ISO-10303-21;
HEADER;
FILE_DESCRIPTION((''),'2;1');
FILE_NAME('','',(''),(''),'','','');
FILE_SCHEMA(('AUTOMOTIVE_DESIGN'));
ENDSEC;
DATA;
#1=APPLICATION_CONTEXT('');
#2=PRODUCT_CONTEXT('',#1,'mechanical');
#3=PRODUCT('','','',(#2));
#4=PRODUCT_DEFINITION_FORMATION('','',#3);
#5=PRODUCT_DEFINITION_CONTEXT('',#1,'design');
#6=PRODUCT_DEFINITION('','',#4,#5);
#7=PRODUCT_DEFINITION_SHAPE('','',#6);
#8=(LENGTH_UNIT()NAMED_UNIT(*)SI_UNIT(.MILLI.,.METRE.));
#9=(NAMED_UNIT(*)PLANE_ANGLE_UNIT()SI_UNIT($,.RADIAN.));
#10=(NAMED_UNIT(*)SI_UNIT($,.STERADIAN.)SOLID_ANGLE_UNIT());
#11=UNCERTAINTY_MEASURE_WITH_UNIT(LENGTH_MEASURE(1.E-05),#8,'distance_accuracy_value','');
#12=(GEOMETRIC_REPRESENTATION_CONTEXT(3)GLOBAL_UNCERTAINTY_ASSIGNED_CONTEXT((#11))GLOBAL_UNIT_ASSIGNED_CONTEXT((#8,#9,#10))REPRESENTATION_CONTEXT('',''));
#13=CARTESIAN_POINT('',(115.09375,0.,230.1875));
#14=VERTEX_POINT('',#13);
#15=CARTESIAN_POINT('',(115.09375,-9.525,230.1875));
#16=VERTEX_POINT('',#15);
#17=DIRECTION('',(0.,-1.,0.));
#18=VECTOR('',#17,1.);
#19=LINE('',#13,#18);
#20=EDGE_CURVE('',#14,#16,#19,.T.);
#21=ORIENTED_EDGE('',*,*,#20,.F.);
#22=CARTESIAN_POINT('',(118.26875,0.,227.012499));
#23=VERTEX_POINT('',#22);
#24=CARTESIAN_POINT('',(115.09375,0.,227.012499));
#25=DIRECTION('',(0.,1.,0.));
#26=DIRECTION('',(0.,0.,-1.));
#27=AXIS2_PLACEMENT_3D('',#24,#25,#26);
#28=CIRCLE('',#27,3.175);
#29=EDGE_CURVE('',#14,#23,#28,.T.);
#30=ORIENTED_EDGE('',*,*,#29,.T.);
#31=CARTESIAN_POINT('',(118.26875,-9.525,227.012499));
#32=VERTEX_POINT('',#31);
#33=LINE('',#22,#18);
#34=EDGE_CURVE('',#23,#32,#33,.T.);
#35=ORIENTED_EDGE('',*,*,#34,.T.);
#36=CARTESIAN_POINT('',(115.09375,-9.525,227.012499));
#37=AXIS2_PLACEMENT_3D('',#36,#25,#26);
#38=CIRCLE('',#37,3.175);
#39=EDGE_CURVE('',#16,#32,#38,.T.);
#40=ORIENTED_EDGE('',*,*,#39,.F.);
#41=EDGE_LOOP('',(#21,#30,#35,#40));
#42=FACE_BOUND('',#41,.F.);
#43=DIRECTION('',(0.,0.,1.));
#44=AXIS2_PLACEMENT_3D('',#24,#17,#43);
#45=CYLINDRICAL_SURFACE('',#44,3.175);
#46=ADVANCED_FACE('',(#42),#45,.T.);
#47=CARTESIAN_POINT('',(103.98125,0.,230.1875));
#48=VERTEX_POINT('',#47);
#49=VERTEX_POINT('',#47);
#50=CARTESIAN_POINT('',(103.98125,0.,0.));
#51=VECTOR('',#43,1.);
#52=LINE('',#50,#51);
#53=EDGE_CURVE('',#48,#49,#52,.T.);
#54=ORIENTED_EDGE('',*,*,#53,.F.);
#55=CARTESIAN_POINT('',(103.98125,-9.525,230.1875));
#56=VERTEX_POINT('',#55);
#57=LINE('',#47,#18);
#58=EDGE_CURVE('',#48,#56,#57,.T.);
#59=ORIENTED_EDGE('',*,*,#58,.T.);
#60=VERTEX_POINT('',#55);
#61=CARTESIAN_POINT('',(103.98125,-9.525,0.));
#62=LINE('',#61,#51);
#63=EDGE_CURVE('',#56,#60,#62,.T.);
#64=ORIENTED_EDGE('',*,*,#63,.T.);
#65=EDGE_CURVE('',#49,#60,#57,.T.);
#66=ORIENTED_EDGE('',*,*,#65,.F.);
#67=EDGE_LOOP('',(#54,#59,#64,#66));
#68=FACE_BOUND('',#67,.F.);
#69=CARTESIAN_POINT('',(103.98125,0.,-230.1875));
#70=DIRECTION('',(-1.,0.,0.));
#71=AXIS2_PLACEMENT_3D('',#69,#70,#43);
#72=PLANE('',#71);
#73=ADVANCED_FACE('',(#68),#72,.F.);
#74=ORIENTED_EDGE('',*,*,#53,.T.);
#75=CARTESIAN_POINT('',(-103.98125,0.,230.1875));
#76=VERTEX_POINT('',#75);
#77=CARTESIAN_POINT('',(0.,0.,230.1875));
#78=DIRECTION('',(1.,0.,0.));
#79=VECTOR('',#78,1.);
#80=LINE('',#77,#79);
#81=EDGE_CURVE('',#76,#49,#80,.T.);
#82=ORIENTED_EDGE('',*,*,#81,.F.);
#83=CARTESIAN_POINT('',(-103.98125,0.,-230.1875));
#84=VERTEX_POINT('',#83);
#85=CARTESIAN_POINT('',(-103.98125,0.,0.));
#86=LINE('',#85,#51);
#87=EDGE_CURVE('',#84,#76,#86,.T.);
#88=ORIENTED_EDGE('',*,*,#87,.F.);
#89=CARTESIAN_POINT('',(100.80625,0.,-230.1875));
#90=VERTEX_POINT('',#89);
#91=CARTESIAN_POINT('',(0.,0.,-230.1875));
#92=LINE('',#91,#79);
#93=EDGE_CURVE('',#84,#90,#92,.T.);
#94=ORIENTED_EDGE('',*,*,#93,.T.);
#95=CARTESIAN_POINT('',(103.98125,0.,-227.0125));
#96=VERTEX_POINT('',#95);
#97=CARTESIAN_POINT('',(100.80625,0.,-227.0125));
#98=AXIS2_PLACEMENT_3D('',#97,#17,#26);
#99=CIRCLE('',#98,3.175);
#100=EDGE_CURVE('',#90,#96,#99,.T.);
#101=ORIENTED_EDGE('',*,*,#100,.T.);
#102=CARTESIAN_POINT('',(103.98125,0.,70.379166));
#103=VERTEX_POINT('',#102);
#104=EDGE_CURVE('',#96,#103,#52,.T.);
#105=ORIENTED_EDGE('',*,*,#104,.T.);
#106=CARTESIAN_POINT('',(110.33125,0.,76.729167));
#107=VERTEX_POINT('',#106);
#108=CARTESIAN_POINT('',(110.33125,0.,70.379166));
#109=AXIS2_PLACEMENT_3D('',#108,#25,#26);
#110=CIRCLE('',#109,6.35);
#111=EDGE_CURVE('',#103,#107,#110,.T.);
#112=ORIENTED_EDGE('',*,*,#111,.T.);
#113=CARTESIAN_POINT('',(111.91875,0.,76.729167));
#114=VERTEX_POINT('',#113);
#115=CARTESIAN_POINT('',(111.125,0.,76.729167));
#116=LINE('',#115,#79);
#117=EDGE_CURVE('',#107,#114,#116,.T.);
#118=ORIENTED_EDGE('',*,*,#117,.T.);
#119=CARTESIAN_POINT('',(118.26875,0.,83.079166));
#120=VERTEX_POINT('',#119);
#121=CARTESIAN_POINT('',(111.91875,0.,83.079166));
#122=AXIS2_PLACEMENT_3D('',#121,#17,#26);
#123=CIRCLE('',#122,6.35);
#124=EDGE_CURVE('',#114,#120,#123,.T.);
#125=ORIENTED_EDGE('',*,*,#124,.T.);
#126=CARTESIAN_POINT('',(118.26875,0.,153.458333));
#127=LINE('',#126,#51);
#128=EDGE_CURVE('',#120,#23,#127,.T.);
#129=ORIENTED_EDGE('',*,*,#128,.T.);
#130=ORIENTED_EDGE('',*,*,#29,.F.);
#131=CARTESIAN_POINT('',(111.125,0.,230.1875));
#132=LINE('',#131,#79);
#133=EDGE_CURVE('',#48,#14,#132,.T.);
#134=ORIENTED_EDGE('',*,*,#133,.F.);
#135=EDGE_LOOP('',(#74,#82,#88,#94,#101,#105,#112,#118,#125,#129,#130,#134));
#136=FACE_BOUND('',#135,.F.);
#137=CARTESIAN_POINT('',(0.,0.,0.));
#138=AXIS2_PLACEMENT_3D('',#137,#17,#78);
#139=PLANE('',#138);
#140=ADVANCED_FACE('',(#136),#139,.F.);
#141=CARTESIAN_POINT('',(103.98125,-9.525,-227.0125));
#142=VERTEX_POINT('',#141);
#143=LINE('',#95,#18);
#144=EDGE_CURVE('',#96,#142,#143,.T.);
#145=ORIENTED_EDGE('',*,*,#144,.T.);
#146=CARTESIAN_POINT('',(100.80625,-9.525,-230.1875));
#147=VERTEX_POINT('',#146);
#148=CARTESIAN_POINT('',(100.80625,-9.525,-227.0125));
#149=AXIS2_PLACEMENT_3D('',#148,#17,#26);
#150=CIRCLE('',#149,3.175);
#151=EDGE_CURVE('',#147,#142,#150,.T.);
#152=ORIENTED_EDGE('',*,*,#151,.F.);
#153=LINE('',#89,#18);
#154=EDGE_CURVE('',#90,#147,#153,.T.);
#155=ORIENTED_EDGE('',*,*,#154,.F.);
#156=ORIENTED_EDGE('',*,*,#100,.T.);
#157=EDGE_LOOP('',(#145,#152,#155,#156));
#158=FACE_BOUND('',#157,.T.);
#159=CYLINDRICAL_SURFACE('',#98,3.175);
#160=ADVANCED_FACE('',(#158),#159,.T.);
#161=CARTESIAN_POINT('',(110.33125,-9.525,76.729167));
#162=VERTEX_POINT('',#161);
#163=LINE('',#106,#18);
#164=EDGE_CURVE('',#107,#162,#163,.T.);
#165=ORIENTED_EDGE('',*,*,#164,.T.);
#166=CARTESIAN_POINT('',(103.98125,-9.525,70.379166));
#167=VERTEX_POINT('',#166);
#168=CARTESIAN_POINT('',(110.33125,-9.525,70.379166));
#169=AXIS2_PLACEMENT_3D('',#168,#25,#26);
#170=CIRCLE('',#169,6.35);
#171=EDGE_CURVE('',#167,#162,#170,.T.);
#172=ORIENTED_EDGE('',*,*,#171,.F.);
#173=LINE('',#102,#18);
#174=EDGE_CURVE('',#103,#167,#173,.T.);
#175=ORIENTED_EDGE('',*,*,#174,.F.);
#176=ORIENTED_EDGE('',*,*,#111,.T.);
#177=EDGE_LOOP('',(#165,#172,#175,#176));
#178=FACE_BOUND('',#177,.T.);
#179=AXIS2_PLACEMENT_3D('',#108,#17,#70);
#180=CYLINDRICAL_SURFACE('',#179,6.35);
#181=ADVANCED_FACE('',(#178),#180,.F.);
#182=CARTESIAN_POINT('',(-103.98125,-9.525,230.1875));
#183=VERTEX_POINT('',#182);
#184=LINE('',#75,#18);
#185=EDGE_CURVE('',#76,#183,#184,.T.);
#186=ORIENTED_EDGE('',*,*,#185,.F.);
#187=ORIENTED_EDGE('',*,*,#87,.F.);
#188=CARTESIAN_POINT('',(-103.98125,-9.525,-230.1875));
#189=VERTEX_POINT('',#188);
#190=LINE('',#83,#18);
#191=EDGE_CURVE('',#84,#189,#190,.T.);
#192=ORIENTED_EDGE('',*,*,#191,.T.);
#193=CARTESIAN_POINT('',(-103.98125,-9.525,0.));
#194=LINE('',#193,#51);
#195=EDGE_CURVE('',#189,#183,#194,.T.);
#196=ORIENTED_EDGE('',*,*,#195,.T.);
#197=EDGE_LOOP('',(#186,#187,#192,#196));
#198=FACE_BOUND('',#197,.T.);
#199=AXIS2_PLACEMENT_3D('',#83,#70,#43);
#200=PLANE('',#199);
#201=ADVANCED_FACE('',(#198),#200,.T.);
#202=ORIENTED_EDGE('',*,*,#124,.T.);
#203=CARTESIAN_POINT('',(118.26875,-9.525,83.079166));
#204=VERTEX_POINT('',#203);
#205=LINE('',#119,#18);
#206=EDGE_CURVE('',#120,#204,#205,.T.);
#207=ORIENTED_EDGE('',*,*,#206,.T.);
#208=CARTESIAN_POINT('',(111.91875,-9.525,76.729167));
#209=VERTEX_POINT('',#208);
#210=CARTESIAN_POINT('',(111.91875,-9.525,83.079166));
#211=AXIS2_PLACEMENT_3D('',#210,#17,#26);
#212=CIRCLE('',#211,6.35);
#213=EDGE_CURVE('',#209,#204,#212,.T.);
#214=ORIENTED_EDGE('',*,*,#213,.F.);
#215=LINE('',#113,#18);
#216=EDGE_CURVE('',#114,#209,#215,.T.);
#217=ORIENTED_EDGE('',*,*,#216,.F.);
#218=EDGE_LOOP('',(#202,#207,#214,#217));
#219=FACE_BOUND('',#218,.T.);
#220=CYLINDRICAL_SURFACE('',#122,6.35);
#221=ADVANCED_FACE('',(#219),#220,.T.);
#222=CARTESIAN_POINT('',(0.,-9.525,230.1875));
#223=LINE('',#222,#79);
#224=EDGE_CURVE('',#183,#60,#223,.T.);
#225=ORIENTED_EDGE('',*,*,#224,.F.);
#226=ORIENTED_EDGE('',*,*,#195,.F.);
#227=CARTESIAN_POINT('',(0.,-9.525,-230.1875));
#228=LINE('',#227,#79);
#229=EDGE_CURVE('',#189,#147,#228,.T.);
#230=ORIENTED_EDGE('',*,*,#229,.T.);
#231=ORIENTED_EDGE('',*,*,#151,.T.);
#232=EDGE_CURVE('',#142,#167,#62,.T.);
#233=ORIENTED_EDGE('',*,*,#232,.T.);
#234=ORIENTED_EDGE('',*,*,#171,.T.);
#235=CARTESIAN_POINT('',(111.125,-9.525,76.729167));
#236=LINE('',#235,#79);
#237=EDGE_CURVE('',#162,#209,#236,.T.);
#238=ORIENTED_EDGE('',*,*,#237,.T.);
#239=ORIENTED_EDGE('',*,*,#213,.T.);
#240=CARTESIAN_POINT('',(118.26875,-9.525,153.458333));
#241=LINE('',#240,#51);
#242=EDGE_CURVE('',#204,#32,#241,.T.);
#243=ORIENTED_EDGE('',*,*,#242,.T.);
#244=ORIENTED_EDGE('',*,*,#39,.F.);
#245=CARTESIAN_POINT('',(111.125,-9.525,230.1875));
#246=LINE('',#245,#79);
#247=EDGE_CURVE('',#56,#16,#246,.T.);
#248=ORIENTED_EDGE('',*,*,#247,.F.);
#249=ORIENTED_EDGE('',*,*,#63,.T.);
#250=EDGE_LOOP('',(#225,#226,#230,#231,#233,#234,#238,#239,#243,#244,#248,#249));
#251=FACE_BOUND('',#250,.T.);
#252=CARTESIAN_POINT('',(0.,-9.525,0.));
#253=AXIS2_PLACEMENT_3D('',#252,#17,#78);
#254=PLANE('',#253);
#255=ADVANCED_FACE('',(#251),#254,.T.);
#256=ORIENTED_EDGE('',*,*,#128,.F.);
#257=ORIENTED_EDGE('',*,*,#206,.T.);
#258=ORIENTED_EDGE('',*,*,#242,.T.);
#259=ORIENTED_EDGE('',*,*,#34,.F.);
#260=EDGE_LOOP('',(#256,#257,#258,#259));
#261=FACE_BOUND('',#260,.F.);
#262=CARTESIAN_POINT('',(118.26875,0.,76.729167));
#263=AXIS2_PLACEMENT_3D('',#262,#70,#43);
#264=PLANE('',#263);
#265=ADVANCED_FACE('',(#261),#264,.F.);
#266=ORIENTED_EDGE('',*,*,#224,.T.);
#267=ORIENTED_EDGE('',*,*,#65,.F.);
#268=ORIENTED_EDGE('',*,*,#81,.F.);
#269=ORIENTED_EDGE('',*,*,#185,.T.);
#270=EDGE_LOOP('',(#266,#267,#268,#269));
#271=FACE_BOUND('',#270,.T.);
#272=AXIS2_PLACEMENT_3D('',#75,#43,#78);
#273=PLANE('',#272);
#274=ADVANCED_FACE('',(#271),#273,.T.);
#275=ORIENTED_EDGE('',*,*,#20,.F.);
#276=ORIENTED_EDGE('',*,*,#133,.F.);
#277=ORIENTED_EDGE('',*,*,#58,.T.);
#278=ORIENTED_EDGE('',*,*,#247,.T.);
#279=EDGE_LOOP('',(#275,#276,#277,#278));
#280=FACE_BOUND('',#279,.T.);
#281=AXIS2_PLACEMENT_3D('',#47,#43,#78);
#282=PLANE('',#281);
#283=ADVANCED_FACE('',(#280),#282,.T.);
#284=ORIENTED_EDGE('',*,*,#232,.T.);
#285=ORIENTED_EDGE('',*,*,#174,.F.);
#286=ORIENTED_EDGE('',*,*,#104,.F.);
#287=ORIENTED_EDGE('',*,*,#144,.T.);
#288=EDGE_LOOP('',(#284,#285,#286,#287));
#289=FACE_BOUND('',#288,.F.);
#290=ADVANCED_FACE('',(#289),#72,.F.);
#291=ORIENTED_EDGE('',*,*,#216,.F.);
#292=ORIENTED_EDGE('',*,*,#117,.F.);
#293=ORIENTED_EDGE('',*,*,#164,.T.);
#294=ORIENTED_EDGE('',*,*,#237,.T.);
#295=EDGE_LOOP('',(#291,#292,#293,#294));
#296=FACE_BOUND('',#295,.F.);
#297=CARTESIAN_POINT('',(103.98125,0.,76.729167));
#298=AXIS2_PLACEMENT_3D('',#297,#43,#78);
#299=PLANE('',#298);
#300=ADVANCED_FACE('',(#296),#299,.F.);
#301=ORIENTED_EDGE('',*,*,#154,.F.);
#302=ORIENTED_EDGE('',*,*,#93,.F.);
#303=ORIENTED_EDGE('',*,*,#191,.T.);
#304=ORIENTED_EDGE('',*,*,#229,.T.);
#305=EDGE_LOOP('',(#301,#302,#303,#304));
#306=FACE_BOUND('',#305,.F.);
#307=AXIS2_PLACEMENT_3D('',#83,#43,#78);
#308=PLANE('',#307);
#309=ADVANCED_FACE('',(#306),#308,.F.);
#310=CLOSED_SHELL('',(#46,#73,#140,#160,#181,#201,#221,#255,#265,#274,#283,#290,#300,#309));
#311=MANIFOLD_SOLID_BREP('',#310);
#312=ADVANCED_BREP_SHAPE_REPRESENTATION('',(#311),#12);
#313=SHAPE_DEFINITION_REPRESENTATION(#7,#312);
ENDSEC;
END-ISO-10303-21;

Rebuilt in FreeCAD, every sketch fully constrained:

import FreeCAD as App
import Part
import Sketcher
from FreeCAD import Vector
Q = App.Units.Quantity


def edges_at(feature, points):
    """Names of the edges that pass closest to the given points."""
    edges = feature.Shape.Edges
    near = lambda p: min(range(len(edges)), key=lambda i: edges[i].distToShape(Part.Vertex(*p))[0])
    return sorted({f"Edge{near(p) + 1}" for p in points})


def add_polygon(sketch, points):
    """Adds a closed chain of lines whose ends are joined by coincident constraints."""
    first, n = sketch.GeometryCount, len(points)
    for a, b in zip(points, points[1:] + points[:1]):
        sketch.addGeometry(Part.LineSegment(App.Vector(*a, 0), App.Vector(*b, 0)), False)
    for i in range(n):
        sketch.addConstraint(Sketcher.Constraint("Coincident", first + i, 2, first + (i + 1) % n, 1))

doc = App.newDocument("Part")
body = doc.addObject("PartDesign::Body", "Body")

sketch1 = body.newObject("Sketcher::SketchObject", "Sketch")
sketch1.AttachmentSupport = (doc.getObject("XZ_Plane"), [""])
sketch1.MapMode = "FlatFace"
add_polygon(sketch1, [(-103.98125, 230.1875), (-103.98125, -230.1875), (103.98125, -230.1875), (103.98125, 230.1875)])
sketch1.addConstraint(Sketcher.Constraint("Vertical", 0))
sketch1.addConstraint(Sketcher.Constraint("Horizontal", 1))
sketch1.addConstraint(Sketcher.Constraint("Vertical", 2))
sketch1.addConstraint(Sketcher.Constraint("Horizontal", 3))
sketch1.addConstraint(Sketcher.Constraint("Symmetric", 0, 2, 2, 2, -1, 1))
sketch1.addConstraint(Sketcher.Constraint("DistanceX", 1, 1, 1, 2, Q("8.1875 in")))
sketch1.addConstraint(Sketcher.Constraint("DistanceY", 0, 2, 0, 1, Q("18.125 in")))
pad1 = body.newObject("PartDesign::Pad", "Pad")
pad1.Profile = sketch1
pad1.Length = Q("0.375 in")

sketch2 = body.newObject("Sketcher::SketchObject", "Sketch001")
sketch2.AttachmentSupport = (doc.getObject("XZ_Plane"), [""])
sketch2.MapMode = "FlatFace"
add_polygon(sketch2, [(103.98125, 230.1875), (103.98125, 76.729167), (118.26875, 76.729167), (118.26875, 230.1875)])
sketch2.addConstraint(Sketcher.Constraint("Vertical", 0))
sketch2.addConstraint(Sketcher.Constraint("Horizontal", 1))
sketch2.addConstraint(Sketcher.Constraint("Vertical", 2))
sketch2.addConstraint(Sketcher.Constraint("Horizontal", 3))
sketch2.addConstraint(Sketcher.Constraint("DistanceX", 1, 1, 1, 2, Q("0.5625 in")))
sketch2.addConstraint(Sketcher.Constraint("DistanceX", -1, 1, 0, 2, Q("4.09375 in")))
sketch2.addConstraint(Sketcher.Constraint("DistanceY", -1, 1, 2, 2, Q("9.0625 in")))
sketch2.addConstraint(Sketcher.Constraint("DistanceY", 0, 2, 0, 1, 153.458333))
pad2 = body.newObject("PartDesign::Pad", "Pad001")
pad2.Profile = sketch2
pad2.Length = Q("0.375 in")
doc.recompute()

fillet = body.newObject("PartDesign::Fillet", "Fillet")
fillet.Base = (pad2, edges_at(pad2, [(103.981, -4.763, -230.188), (118.269, -4.763, 230.187)]))
fillet.Radius = Q("0.125 in")
doc.recompute()

fillet2 = body.newObject("PartDesign::Fillet", "Fillet001")
fillet2.Base = (fillet, edges_at(fillet, [(103.981, -4.763, 76.729), (118.269, -4.763, 76.729)]))
fillet2.Radius = Q("0.25 in")

doc.recompute()
